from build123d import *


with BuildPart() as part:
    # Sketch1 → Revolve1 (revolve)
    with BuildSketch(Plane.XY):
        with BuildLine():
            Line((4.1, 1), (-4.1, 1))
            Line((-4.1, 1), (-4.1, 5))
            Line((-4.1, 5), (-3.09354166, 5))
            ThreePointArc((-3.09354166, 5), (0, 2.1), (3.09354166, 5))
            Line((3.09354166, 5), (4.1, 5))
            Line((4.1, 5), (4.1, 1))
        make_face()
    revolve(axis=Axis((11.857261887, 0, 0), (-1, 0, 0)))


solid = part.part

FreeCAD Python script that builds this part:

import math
import FreeCAD as App
import Part
import Sketcher

doc = App.newDocument("Part")
body = doc.addObject("PartDesign::Body", "Body")

sketch1 = body.newObject("Sketcher::SketchObject", "Sketch")
sketch1.AttachmentSupport = (doc.getObject("XY_Plane"), [""])
sketch1.MapMode = "FlatFace"
sketch1.addGeometry([
    Part.LineSegment(App.Vector(-4.1, 1, 0), App.Vector(4.1, 1, 0)),
    Part.LineSegment(App.Vector(4.1, 1, 0), App.Vector(4.1, 5, 0)),
    Part.LineSegment(App.Vector(4.1, 5, 0), App.Vector(3.093542, 5, 0)),
    Part.ArcOfCircle(Part.Circle(App.Vector(0, 5.2, 0), App.Vector(0, 0, 1), 3.1), math.radians(-176.300929), math.radians(-3.699071)),
    Part.LineSegment(App.Vector(-3.093542, 5, 0), App.Vector(-4.1, 5, 0)),
    Part.LineSegment(App.Vector(-4.1, 5, 0), App.Vector(-4.1, 1, 0)),
], False)
sketch1.addConstraint([
    Sketcher.Constraint("Coincident", 0, 2, 1, 1),
    Sketcher.Constraint("Coincident", 1, 2, 2, 1),
    Sketcher.Constraint("Coincident", 2, 2, 3, 2),
    Sketcher.Constraint("Coincident", 3, 1, 4, 1),
    Sketcher.Constraint("Coincident", 4, 2, 5, 1),
    Sketcher.Constraint("Coincident", 5, 2, 0, 1),
    Sketcher.Constraint("Horizontal", 0),
    Sketcher.Constraint("Vertical", 1),
    Sketcher.Constraint("Horizontal", 2),
    Sketcher.Constraint("Horizontal", 4),
    Sketcher.Constraint("Vertical", 5),
    Sketcher.Constraint("Symmetric", 2, 2, 3, 1, -2),
    Sketcher.Constraint("Equal", 2, 4),
    Sketcher.Constraint("Radius", 3, 3.1),
    Sketcher.Constraint("DistanceY", 1, 1, 1, 2, 4.0),
    Sketcher.Constraint("DistanceX", 0, 1, 0, 2, 8.2),
    Sketcher.Constraint("DistanceY", -1, 1, 0, 2, 1.0),
    Sketcher.Constraint("DistanceY", -1, 1, 3, 3, 5.2),
])
revolution = body.newObject("PartDesign::Revolution", "Revolution")
revolution.Profile = sketch1
revolution.ReferenceAxis = (sketch1, ["H_Axis"])
revolution.Angle = 360

doc.recompute()
